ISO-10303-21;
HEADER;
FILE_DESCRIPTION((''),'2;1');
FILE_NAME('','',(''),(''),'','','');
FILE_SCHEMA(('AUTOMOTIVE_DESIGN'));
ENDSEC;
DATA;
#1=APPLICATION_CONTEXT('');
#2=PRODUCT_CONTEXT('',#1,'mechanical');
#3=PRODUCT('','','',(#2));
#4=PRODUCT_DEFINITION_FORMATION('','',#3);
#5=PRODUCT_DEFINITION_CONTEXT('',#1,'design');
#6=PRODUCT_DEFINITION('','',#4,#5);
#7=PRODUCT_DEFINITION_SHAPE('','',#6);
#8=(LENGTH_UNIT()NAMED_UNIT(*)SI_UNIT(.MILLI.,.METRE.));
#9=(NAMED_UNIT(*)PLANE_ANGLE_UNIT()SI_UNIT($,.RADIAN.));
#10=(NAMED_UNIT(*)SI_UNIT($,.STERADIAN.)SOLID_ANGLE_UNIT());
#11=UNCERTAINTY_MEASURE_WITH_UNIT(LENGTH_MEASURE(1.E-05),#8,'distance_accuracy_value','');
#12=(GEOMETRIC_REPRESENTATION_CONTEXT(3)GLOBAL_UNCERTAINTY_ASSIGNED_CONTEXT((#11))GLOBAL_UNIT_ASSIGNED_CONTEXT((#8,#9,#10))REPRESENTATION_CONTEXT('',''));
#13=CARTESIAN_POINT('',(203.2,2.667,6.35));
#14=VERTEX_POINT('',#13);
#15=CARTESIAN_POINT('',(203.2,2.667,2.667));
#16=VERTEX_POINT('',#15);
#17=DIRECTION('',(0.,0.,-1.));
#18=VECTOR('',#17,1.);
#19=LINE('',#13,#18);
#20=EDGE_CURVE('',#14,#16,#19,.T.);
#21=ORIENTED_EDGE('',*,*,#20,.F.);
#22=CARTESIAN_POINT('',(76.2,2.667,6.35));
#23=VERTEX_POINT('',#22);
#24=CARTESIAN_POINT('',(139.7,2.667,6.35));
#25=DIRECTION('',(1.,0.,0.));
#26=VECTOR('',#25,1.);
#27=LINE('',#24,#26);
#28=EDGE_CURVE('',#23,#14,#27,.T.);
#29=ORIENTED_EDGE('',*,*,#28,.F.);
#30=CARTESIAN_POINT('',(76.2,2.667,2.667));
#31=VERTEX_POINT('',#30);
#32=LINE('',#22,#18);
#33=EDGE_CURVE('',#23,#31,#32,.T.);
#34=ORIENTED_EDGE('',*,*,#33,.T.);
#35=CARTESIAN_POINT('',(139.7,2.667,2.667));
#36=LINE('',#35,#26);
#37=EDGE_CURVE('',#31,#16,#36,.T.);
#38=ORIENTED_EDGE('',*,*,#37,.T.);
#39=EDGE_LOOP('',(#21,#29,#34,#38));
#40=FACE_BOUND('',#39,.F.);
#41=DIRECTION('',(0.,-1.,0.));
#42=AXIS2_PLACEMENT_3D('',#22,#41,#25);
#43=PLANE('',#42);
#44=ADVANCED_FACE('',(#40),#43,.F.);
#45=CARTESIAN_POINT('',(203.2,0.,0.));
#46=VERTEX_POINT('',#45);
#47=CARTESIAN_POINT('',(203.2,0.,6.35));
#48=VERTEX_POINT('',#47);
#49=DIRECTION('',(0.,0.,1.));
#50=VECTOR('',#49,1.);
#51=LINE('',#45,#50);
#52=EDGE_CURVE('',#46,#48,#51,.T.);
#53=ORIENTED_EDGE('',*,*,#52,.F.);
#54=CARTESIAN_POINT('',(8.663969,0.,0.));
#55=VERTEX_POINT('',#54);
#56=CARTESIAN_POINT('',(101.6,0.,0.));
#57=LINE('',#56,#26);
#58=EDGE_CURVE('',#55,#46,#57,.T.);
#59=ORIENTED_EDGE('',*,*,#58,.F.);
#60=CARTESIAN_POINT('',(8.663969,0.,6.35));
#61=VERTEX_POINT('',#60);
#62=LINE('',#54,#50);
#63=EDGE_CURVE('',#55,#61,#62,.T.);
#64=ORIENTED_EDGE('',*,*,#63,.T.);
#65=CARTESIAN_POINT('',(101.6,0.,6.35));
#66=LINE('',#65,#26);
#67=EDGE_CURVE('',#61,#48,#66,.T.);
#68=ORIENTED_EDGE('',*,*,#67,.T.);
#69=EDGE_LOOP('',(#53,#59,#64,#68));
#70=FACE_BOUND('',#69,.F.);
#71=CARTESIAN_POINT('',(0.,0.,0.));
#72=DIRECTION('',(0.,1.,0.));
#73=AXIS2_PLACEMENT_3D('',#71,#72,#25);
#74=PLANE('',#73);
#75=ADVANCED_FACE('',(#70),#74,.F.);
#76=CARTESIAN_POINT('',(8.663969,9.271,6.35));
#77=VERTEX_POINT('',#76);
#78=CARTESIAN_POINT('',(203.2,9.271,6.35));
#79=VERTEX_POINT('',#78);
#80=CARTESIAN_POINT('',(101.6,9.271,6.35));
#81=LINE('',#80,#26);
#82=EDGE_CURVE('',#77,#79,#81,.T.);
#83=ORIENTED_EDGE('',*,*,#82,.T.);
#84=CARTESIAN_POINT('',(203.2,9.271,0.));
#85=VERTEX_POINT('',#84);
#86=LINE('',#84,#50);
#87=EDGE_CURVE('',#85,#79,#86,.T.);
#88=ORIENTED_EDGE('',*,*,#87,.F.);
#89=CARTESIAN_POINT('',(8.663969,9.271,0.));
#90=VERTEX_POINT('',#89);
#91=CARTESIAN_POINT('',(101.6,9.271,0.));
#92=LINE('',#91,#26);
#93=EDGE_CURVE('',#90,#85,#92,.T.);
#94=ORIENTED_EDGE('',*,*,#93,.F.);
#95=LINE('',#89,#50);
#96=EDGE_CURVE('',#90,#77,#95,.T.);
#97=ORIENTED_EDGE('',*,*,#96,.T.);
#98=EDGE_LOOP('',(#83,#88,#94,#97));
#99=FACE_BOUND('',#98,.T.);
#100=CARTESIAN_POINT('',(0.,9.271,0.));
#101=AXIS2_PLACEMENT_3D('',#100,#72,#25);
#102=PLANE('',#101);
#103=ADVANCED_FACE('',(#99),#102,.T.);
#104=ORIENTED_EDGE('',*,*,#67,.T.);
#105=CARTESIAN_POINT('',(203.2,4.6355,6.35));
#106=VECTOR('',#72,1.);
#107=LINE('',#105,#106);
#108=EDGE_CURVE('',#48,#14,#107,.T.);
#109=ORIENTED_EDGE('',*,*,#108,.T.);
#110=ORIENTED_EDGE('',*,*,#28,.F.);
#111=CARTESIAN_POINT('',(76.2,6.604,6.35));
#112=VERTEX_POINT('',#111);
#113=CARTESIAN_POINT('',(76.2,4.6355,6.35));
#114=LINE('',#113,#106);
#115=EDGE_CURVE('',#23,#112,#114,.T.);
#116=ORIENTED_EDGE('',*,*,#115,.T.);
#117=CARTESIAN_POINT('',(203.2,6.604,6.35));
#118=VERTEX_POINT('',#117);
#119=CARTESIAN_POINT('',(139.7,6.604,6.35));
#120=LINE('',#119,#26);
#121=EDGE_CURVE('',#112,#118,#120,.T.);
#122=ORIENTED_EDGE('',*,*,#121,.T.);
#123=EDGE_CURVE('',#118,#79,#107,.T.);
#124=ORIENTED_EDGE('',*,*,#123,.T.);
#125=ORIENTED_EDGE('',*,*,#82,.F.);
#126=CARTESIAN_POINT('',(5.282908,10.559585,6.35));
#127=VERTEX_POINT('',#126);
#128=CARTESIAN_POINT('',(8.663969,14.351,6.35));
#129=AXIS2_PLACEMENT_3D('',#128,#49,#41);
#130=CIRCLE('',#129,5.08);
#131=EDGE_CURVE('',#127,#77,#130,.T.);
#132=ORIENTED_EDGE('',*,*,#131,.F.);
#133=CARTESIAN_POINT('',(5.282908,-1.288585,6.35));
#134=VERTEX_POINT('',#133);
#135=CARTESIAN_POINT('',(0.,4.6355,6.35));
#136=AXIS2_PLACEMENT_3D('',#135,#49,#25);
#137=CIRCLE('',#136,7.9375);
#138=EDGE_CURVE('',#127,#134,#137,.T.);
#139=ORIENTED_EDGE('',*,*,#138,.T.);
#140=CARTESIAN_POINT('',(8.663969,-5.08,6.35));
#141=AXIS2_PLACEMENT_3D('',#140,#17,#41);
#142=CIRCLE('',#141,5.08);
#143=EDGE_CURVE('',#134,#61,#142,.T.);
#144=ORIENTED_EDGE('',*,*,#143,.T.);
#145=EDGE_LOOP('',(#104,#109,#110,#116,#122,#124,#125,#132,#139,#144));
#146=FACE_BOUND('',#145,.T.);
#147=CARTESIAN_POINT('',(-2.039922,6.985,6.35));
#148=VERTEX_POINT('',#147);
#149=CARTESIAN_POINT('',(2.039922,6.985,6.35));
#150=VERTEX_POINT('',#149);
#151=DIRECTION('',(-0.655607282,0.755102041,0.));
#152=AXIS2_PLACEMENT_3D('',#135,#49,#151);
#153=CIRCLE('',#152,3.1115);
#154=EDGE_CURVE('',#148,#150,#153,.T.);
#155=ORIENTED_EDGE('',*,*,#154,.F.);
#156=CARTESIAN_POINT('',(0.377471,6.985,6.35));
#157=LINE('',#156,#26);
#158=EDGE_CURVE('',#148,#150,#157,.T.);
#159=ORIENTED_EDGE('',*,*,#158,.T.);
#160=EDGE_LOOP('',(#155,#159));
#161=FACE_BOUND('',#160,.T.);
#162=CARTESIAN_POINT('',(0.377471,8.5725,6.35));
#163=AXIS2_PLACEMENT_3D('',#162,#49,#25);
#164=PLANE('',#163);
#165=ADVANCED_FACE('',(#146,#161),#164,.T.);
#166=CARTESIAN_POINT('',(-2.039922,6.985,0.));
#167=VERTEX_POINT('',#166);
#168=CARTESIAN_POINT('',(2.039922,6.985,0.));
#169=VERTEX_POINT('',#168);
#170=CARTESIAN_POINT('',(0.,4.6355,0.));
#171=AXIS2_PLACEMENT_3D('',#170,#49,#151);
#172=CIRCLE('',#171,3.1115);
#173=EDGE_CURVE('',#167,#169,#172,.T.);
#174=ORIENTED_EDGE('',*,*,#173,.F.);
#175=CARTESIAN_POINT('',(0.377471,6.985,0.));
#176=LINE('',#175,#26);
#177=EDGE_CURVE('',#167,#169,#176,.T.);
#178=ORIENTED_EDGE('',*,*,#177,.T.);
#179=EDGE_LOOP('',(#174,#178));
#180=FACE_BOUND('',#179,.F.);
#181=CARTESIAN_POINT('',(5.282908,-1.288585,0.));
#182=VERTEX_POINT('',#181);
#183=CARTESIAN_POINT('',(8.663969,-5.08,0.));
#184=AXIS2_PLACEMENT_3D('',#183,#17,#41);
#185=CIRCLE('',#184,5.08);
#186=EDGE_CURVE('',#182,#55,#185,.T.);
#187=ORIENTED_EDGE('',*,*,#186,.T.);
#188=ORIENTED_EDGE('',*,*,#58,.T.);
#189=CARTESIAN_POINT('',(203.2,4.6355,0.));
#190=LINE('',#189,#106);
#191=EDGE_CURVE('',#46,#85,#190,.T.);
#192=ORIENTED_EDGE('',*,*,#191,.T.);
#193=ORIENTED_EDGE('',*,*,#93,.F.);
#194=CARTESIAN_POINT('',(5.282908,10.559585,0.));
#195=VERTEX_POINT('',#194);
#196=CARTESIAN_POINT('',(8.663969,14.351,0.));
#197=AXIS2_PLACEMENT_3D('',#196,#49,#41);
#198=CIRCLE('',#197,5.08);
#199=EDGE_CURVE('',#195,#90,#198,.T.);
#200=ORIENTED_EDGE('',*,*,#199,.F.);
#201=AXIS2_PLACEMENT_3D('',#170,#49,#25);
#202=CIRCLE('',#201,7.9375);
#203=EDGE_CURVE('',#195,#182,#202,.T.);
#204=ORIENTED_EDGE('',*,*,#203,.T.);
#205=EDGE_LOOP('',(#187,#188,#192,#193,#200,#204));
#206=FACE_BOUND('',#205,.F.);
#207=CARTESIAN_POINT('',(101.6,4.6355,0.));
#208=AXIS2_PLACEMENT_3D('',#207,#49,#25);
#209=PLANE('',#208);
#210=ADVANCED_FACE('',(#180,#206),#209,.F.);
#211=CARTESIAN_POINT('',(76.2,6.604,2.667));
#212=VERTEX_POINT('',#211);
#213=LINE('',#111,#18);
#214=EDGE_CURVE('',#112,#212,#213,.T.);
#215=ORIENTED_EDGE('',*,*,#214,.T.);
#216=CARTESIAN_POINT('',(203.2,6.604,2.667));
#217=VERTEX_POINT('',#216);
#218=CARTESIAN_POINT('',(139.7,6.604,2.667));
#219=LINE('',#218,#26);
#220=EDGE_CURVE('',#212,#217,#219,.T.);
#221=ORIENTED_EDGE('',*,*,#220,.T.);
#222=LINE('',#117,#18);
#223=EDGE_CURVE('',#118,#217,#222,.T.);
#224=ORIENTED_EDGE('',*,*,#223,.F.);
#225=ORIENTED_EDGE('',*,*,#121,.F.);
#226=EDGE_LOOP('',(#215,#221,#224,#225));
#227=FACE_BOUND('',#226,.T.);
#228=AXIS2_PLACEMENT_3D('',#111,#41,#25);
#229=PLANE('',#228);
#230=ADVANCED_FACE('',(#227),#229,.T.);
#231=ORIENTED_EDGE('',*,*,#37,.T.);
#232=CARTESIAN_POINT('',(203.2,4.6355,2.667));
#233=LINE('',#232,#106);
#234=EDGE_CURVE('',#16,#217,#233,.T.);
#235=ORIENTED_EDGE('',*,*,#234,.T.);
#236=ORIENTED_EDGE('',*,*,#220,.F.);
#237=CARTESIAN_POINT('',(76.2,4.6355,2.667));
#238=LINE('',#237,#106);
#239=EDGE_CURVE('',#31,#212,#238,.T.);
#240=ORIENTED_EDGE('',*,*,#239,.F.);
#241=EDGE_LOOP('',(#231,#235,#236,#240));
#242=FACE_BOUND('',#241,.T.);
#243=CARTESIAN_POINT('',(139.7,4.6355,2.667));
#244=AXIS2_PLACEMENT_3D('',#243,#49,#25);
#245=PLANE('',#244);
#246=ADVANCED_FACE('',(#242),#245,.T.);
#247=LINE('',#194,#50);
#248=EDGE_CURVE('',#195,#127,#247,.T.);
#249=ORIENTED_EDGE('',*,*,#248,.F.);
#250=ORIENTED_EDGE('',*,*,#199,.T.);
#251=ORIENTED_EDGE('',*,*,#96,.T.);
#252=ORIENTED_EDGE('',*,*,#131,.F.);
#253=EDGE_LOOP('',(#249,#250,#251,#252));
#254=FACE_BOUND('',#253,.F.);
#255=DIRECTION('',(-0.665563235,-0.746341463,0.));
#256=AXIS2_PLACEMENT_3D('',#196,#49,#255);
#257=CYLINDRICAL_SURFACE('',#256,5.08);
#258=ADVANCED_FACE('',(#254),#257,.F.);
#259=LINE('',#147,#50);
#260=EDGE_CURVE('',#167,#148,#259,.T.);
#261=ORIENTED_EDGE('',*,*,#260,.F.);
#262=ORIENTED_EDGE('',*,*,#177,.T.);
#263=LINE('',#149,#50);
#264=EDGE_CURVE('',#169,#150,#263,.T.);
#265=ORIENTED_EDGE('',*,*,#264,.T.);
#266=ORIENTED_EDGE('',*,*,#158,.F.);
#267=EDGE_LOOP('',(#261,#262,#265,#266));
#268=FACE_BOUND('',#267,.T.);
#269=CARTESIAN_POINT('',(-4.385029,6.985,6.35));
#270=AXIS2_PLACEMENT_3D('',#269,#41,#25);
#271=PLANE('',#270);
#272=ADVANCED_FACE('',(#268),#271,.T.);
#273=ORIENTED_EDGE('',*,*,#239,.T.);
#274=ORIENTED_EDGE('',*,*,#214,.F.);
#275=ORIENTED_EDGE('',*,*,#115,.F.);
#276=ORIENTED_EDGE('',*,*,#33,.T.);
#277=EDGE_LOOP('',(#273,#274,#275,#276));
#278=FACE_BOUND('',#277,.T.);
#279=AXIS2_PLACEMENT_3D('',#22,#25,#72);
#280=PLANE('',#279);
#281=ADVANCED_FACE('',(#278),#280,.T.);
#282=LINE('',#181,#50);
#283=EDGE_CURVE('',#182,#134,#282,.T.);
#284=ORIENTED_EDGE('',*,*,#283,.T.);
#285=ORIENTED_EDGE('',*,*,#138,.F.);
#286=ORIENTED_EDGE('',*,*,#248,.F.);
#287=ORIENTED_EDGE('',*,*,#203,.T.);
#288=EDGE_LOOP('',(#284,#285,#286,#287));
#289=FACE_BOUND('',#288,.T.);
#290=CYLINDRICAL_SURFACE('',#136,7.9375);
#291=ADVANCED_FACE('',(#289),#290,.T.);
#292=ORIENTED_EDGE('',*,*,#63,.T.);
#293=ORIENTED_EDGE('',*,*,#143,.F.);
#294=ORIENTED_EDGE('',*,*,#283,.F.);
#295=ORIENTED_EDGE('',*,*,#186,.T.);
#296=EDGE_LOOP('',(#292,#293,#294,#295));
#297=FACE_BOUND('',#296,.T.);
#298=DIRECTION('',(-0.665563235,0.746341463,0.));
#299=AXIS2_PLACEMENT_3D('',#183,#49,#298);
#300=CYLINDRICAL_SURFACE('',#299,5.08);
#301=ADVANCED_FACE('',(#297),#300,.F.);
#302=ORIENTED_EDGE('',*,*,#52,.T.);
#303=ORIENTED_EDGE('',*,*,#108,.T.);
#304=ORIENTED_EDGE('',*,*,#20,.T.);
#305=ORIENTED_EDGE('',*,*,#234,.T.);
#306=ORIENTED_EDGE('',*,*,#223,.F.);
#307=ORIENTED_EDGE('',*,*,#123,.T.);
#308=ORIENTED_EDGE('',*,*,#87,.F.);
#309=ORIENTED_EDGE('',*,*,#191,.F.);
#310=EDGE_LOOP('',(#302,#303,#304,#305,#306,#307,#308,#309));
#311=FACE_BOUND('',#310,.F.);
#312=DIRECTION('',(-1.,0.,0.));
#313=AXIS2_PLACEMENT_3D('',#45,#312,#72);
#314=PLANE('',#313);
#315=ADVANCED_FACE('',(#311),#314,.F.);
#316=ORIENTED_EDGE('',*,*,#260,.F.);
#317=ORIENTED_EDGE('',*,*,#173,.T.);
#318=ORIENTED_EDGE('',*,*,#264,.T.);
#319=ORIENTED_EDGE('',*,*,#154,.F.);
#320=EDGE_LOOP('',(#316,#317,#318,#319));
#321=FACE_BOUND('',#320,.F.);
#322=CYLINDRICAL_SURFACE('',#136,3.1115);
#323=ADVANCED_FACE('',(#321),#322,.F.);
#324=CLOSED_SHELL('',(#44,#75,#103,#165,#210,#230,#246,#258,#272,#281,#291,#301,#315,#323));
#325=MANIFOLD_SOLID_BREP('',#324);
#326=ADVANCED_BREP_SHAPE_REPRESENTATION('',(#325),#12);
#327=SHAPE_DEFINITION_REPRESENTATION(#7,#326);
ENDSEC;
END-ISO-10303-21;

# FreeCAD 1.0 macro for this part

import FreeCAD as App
import Part
import Sketcher
from FreeCAD import Vector
Q = App.Units.Quantity


def edges_at(feature, points):
    """Names of the edges that pass closest to the given points."""
    edges = feature.Shape.Edges
    near = lambda p: min(range(len(edges)), key=lambda i: edges[i].distToShape(Part.Vertex(*p))[0])
    return sorted({f"Edge{near(p) + 1}" for p in points})


def add_polygon(sketch, points):
    """Adds a closed chain of lines whose ends are joined by coincident constraints."""
    first, n = sketch.GeometryCount, len(points)
    for a, b in zip(points, points[1:] + points[:1]):
        sketch.addGeometry(Part.LineSegment(App.Vector(*a, 0), App.Vector(*b, 0)), False)
    for i in range(n):
        sketch.addConstraint(Sketcher.Constraint("Coincident", first + i, 2, first + (i + 1) % n, 1))

doc = App.newDocument("Part")
body = doc.addObject("PartDesign::Body", "Body")

# Sketch on XY plane
sketch1 = body.newObject("Sketcher::SketchObject", "Sketch")
sketch1.AttachmentSupport = (doc.getObject("XY_Plane"), [""])
sketch1.MapMode = "FlatFace"
add_polygon(sketch1, [(0, 9), (0, 0), (203, 0), (203, 9)])  # lines 0-3
sketch1.addConstraint([
    Sketcher.Constraint("Vertical", 0),
    Sketcher.Constraint("Horizontal", 1),
    Sketcher.Constraint("Vertical", 2),
    Sketcher.Constraint("Horizontal", 3),
    Sketcher.Constraint("Coincident", 0, 2, -1, 1),
    Sketcher.Constraint("DistanceX", 1, 1, 1, 2, Q("8 in")),
    Sketcher.Constraint("DistanceY", 0, 2, 0, 1, Q("0.365 in")),
])
pad1 = body.newObject("PartDesign::Pad", "Pad")
pad1.Profile = sketch1
pad1.Length = Q("0.25 in")

# Sketch on XY plane
sketch2 = body.newObject("Sketcher::SketchObject", "Sketch001")
sketch2.AttachmentSupport = (doc.getObject("XY_Plane"), [""])
sketch2.MapMode = "FlatFace"
sketch2.AttachmentOffset = App.Placement(Vector(0, 0, 0.25 * 25.4), App.Rotation())
add_polygon(sketch2, [(76.2, 6.6), (76.2, 2.7), (203.2, 2.7), (203.2, 6.6)])  # lines 0-3
sketch2.addConstraint([
    Sketcher.Constraint("Vertical", 0),
    Sketcher.Constraint("Horizontal", 1),
    Sketcher.Constraint("Vertical", 2),
    Sketcher.Constraint("Horizontal", 3),
    Sketcher.Constraint("DistanceX", 1, 1, 1, 2, Q("5 in")),
    Sketcher.Constraint("DistanceX", -1, 1, 0, 2, Q("3 in")),
    Sketcher.Constraint("DistanceY", 0, 2, 0, 1, Q("0.155 in")),
    Sketcher.Constraint("DistanceY", -1, 1, 2, 2, Q("0.26 in")),
])
pocket1 = body.newObject("PartDesign::Pocket", "Pocket")
pocket1.Profile = sketch2
pocket1.Length = Q("0.145 in")

# Sketch on XY plane
sketch3 = body.newObject("Sketcher::SketchObject", "Sketch002")
sketch3.AttachmentSupport = (doc.getObject("XY_Plane"), [""])
sketch3.MapMode = "FlatFace"
sketch3.AttachmentOffset = App.Placement(Vector(0, 0, 0.25 * 25.4), App.Rotation())
sketch3.addGeometry(Part.Circle(Vector(0, 5, 0), Vector(0, 0, 1), 8), False)
sketch3.addConstraint([
    Sketcher.Constraint("PointOnObject", 0, 3, -2),
    Sketcher.Constraint("Diameter", 0, Q("0.625 in")),
    Sketcher.Constraint("DistanceY", -1, 1, 0, 3, Q("0.1825 in")),
])
pad2 = body.newObject("PartDesign::Pad", "Pad001")
pad2.Profile = sketch3
pad2.Type = "UpToLast"
pad2.Reversed = True
doc.recompute()

fillet = body.newObject("PartDesign::Fillet", "Fillet")
fillet.Base = (pad2, edges_at(pad2, [(6.443, 9.271, 3.175), (6.443, 0, 3.175)]))
fillet.Radius = Q("0.2 in")

# Sketch on XY plane
sketch4 = body.newObject("Sketcher::SketchObject", "Sketch003")
sketch4.AttachmentSupport = (doc.getObject("XY_Plane"), [""])
sketch4.MapMode = "FlatFace"
sketch4.AttachmentOffset = App.Placement(Vector(0, 0, 0.25 * 25.4), App.Rotation())
sketch4.addGeometry(Part.Circle(Vector(0, 4.6, 0), Vector(0, 0, 1), 3.1), False)
sketch4.addConstraint([
    Sketcher.Constraint("PointOnObject", 0, 3, -2),
    Sketcher.Constraint("Diameter", 0, Q("0.245 in")),
    Sketcher.Constraint("DistanceY", -1, 1, 0, 3, Q("0.1825 in")),
])
pocket2 = body.newObject("PartDesign::Pocket", "Pocket001")
pocket2.Profile = sketch4
pocket2.Type = "ThroughAll"

# Sketch on XY plane
sketch5 = body.newObject("Sketcher::SketchObject", "Sketch004")
sketch5.AttachmentSupport = (doc.getObject("XY_Plane"), [""])
sketch5.MapMode = "FlatFace"
sketch5.AttachmentOffset = App.Placement(Vector(0, 0, 0.25 * 25.4), App.Rotation())
add_polygon(sketch5, [(-4.4, 10.2), (-4.4, 7), (5.1, 7), (5.1, 10.2)])  # lines 0-3
sketch5.addConstraint([
    Sketcher.Constraint("Vertical", 0),
    Sketcher.Constraint("Horizontal", 1),
    Sketcher.Constraint("Vertical", 2),
    Sketcher.Constraint("Horizontal", 3),
    Sketcher.Constraint("DistanceY", -1, 1, 2, 2, Q("0.4 in")),
    Sketcher.Constraint("DistanceX", 1, 1, 1, 2, Q("0.375 in")),
    Sketcher.Constraint("DistanceY", 0, 2, 0, 1, Q("0.125 in")),
    Sketcher.Constraint("DistanceX", 0, 2, -1, 1, 4.385029),
])
pad3 = body.newObject("PartDesign::Pad", "Pad002")
pad3.Profile = sketch5
pad3.Type = "UpToLast"
pad3.Reversed = True

doc.recompute()
